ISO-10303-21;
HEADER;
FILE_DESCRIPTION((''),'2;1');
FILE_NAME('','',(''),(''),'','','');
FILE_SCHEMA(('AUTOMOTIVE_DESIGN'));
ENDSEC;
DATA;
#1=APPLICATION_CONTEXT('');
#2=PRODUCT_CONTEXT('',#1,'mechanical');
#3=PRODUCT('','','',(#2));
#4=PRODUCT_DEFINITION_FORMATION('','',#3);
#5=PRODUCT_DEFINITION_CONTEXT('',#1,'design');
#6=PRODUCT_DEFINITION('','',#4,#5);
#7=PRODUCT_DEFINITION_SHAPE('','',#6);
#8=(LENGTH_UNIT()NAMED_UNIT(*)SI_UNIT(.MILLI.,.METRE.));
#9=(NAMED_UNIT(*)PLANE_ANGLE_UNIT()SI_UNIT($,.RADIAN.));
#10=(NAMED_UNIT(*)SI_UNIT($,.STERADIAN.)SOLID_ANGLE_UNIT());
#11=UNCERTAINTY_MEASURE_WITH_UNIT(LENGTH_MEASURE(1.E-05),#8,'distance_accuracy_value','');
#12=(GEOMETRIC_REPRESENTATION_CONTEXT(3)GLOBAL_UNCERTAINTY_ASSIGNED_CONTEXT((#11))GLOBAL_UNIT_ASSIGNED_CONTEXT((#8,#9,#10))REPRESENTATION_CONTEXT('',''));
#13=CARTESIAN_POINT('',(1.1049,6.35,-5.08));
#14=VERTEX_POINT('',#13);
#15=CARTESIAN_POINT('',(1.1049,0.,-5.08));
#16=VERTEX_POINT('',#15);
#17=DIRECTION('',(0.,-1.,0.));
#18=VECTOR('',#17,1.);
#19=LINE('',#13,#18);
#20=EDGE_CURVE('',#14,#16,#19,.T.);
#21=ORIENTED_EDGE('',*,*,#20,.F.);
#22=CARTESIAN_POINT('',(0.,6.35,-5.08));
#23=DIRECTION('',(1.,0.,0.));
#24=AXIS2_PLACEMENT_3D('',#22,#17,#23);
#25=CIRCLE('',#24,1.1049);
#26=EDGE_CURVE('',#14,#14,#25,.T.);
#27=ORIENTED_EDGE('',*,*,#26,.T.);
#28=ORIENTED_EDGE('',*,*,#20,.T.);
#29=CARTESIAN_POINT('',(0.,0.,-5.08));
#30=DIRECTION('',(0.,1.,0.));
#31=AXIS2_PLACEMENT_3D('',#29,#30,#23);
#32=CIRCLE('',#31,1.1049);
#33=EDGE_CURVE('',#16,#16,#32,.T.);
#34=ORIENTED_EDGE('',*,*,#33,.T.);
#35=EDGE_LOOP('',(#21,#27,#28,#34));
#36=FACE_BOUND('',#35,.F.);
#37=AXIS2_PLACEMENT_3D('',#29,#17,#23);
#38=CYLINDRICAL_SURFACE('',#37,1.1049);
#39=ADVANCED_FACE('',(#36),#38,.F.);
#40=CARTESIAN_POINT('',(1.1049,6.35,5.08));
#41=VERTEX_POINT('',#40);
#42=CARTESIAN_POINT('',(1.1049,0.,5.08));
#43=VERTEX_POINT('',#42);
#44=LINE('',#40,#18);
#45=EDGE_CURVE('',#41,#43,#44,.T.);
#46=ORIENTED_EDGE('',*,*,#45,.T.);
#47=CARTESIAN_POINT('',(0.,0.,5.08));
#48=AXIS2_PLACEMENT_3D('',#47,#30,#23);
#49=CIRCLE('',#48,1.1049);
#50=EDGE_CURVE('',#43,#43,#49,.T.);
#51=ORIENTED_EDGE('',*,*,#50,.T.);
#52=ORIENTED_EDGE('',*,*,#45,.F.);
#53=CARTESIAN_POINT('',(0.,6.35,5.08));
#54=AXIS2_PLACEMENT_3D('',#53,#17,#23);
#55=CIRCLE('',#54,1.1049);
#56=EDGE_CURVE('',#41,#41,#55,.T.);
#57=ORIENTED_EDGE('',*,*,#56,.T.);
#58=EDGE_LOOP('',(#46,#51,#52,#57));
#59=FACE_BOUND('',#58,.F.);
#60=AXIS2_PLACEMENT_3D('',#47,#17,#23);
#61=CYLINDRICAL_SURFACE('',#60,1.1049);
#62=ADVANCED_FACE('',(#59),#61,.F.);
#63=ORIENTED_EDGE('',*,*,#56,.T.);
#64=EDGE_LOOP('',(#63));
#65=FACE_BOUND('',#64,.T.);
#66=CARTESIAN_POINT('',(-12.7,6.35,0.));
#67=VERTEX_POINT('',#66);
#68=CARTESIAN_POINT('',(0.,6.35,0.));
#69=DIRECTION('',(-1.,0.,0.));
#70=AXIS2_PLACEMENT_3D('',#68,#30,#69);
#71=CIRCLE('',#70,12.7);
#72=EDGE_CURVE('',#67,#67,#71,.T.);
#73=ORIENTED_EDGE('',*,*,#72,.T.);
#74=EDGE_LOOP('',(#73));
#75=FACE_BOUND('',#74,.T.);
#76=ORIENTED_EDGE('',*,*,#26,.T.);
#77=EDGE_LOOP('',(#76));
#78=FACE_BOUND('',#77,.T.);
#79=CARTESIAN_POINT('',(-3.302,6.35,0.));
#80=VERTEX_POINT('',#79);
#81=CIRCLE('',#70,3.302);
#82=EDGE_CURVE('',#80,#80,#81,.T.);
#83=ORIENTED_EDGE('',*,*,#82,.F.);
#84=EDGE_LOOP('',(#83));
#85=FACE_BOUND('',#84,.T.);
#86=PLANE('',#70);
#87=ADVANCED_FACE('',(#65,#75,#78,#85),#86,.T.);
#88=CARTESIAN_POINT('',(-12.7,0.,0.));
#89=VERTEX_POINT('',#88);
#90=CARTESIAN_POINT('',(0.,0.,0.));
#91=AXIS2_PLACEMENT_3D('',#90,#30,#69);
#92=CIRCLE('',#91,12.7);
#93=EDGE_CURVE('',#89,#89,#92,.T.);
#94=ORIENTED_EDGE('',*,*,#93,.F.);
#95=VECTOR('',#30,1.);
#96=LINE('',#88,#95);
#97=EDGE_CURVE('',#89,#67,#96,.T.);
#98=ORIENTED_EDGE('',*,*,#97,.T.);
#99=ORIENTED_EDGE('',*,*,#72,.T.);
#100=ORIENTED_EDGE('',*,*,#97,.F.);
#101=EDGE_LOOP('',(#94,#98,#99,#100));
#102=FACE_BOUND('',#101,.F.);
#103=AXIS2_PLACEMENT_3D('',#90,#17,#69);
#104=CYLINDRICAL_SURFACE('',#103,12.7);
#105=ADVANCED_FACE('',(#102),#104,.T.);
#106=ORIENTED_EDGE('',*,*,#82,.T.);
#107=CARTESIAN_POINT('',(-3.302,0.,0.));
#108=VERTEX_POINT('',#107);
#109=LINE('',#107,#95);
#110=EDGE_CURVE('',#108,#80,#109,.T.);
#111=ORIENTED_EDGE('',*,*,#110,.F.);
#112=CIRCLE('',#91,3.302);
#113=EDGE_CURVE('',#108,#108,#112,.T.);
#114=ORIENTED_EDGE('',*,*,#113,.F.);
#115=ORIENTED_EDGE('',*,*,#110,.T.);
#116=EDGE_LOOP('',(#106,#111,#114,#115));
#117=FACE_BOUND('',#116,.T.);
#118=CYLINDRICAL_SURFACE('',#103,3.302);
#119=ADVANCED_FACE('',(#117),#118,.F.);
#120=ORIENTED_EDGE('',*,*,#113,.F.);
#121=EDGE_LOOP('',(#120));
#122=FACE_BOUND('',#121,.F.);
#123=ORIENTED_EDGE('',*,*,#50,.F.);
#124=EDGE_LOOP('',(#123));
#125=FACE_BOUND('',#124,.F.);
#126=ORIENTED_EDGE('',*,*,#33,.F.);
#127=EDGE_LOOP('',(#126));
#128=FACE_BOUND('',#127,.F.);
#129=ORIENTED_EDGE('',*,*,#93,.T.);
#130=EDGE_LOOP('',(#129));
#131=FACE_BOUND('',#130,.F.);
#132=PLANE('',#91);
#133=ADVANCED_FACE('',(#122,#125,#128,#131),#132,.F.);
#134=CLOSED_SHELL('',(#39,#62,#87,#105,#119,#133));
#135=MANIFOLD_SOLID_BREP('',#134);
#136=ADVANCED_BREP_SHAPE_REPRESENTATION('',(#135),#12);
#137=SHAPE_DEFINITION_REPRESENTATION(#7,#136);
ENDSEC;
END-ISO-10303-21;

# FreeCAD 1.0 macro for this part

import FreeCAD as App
import Part
import Sketcher
from FreeCAD import Vector
Q = App.Units.Quantity

doc = App.newDocument("Part")
body = doc.addObject("PartDesign::Body", "Body")

sketch1 = doc.addObject("Sketcher::SketchObject", "Sketch")
body.addObject(sketch1)
sketch1.AttachmentSupport = (doc.XZ_Plane, [""])
sketch1.MapMode = "FlatFace"
sketch1.addGeometry([
    Part.Circle(Vector(0, 0, 0), Vector(0, 0, 1), 12.7),
    Part.Circle(Vector(0, 0, 0), Vector(0, 0, 1), 3.3),
], False)
sketch1.addConstraint([
    Sketcher.Constraint("Coincident", 0, 3, -1, 1),
    Sketcher.Constraint("Coincident", 1, 3, -1, 1),
    Sketcher.Constraint("Diameter", 0, Q("1 in")),
    Sketcher.Constraint("Diameter", 1, Q("0.26 in")),
])
pad1 = doc.addObject("PartDesign::Pad", "Pad")
body.addObject(pad1)
pad1.Profile = sketch1
pad1.Length = Q("0.25 in")
pad1.Reversed = True

sketch2 = doc.addObject("Sketcher::SketchObject", "Sketch001")
body.addObject(sketch2)
sketch2.AttachmentSupport = (doc.XZ_Plane, [""])
sketch2.MapMode = "FlatFace"
sketch2.AttachmentOffset = App.Placement(Vector(0, 0, -0.25 * 25.4), App.Rotation())
sketch2.addGeometry([
    Part.Circle(Vector(0, 5.1, 0), Vector(0, 0, 1), 1.1),
    Part.Circle(Vector(0, -5.1, 0), Vector(0, 0, 1), 1.1),
], False)
sketch2.addConstraint([
    Sketcher.Constraint("Equal", 0, 1),
    Sketcher.Constraint("Symmetric", 0, 3, 1, 3, -1, 1),
    Sketcher.Constraint("PointOnObject", 0, 3, -2),
    Sketcher.Constraint("Diameter", 0, Q("0.087 in")),
    Sketcher.Constraint("DistanceY", -1, 1, 0, 3, Q("0.2 in")),
])
pocket1 = doc.addObject("PartDesign::Pocket", "Pocket")
body.addObject(pocket1)
pocket1.Profile = sketch2
pocket1.Length = Q("0.175 in")
pocket1.Reversed = True

sketch3 = doc.addObject("Sketcher::SketchObject", "Sketch002")
body.addObject(sketch3)
sketch3.AttachmentSupport = (doc.XZ_Plane, [""])
sketch3.MapMode = "FlatFace"
sketch3.addGeometry([
    Part.Circle(Vector(0, 5.1, 0), Vector(0, 0, 1), 1.1),
    Part.Circle(Vector(0, -5.1, 0), Vector(0, 0, 1), 1.1),
], False)
sketch3.addConstraint([
    Sketcher.Constraint("Equal", 0, 1),
    Sketcher.Constraint("Symmetric", 0, 3, 1, 3, -1, 1),
    Sketcher.Constraint("PointOnObject", 0, 3, -2),
    Sketcher.Constraint("Diameter", 0, Q("0.087 in")),
    Sketcher.Constraint("DistanceY", -1, 1, 0, 3, Q("0.2 in")),
])
pocket2 = doc.addObject("PartDesign::Pocket", "Pocket001")
body.addObject(pocket2)
pocket2.Profile = sketch3
pocket2.Length = Q("0.075 in")

doc.recompute()
